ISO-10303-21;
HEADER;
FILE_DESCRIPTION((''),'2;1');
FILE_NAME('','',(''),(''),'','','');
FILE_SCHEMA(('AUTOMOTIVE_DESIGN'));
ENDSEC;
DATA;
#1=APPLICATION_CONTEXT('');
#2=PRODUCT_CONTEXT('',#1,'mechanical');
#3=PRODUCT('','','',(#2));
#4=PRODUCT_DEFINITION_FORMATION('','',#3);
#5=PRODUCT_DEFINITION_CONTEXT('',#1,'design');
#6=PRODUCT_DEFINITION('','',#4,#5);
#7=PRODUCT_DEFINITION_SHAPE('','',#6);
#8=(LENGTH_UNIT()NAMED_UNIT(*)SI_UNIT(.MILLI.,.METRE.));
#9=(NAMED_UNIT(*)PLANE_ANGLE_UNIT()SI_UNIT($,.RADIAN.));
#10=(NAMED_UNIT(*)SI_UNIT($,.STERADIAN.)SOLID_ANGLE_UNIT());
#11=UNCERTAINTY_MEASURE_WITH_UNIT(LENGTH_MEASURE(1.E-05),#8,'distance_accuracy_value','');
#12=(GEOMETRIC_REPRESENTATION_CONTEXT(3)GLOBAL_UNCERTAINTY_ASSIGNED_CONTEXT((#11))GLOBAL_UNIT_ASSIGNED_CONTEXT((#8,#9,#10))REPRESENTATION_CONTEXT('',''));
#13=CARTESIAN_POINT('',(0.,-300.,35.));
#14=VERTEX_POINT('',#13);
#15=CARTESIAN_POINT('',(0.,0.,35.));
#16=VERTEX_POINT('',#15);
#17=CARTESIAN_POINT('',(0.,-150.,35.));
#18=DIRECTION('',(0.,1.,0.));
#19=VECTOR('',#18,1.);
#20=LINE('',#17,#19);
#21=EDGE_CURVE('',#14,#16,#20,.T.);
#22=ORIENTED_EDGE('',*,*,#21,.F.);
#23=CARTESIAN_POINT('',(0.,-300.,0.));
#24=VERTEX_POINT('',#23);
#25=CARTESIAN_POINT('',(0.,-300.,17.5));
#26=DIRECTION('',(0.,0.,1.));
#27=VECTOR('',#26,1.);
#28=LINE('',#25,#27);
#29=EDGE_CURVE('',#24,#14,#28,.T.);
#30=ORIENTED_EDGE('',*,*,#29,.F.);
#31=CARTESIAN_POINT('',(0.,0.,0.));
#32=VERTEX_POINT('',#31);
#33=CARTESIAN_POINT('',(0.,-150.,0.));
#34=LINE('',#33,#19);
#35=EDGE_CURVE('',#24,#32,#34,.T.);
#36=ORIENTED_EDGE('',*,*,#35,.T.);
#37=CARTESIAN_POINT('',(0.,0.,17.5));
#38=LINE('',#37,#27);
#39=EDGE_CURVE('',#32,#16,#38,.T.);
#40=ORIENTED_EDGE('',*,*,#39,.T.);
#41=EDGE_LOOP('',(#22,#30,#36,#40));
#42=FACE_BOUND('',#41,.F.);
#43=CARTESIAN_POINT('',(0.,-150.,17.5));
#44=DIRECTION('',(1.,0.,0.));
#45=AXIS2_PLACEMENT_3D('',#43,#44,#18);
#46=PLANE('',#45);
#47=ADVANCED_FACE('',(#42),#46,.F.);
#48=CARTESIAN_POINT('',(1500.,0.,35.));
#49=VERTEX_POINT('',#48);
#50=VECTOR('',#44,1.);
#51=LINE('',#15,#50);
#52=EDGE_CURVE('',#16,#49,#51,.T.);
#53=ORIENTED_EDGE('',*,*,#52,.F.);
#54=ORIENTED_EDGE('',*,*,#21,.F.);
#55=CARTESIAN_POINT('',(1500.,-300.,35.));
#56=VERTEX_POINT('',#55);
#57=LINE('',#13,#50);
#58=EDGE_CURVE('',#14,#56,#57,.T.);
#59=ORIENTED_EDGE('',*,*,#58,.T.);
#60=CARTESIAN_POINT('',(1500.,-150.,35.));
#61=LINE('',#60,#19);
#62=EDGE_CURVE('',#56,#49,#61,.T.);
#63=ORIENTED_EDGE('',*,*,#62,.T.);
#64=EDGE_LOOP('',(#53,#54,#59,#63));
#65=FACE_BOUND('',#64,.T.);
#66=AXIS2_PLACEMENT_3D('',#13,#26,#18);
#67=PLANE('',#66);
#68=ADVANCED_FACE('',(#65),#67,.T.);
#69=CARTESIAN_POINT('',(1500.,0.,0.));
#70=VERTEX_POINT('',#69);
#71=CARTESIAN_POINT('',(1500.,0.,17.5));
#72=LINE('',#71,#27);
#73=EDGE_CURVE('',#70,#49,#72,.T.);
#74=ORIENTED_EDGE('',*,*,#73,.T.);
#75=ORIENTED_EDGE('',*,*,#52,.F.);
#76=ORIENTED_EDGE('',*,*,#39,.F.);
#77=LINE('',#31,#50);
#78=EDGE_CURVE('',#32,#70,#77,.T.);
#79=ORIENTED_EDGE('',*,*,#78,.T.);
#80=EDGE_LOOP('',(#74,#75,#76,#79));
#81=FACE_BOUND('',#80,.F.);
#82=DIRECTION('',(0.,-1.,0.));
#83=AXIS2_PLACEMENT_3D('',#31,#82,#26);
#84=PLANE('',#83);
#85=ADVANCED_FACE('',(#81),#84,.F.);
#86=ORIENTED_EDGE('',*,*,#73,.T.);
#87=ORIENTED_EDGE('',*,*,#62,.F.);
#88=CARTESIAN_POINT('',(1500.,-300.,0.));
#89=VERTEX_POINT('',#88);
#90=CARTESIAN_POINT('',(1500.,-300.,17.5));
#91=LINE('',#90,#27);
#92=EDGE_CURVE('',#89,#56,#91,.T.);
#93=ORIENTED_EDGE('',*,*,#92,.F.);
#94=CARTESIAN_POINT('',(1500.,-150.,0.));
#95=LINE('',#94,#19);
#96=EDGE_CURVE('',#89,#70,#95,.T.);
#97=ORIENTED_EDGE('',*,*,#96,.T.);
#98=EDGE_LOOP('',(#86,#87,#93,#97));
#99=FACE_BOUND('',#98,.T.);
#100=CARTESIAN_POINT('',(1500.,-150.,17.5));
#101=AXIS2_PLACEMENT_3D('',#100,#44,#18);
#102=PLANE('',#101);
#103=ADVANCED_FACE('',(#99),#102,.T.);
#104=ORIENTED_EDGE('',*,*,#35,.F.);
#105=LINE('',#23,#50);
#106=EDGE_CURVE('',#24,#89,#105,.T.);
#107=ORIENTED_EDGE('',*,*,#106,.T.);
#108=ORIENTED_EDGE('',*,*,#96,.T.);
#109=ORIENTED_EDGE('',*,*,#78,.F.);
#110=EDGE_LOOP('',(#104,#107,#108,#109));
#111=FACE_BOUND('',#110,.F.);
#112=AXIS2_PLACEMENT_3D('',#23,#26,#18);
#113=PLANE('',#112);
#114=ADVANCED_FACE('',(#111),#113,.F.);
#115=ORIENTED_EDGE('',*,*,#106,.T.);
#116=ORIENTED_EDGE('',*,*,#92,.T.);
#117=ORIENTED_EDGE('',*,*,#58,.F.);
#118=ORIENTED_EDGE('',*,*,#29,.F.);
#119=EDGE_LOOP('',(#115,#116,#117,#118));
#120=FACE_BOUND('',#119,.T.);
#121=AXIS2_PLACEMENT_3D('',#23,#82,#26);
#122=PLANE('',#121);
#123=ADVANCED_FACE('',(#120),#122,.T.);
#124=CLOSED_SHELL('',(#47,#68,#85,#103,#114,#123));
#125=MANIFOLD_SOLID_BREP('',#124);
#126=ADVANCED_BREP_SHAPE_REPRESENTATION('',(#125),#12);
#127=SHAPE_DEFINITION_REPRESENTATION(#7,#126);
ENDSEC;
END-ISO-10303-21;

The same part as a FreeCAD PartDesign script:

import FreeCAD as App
import Part
import Sketcher

V = App.Vector
Q = App.Units.Quantity

doc = App.newDocument("Part")
body = doc.addObject("PartDesign::Body", "Body")

sketch1 = body.newObject("Sketcher::SketchObject", "Sketch")
sketch1.AttachmentSupport = (doc.getObject("YZ_Plane"), [""])
sketch1.MapMode = "FlatFace"
sketch1.addGeometry(Part.LineSegment(V(-300, 35, 0), V(-300, 0, 0)), False)
sketch1.addGeometry(Part.LineSegment(V(-300, 0, 0), V(0, 0, 0)), False)
sketch1.addGeometry(Part.LineSegment(V(0, 0, 0), V(0, 35, 0)), False)
sketch1.addGeometry(Part.LineSegment(V(0, 35, 0), V(-300, 35, 0)), False)
sketch1.addConstraint(Sketcher.Constraint("Coincident", 0, 2, 1, 1))
sketch1.addConstraint(Sketcher.Constraint("Coincident", 1, 2, 2, 1))
sketch1.addConstraint(Sketcher.Constraint("Coincident", 2, 2, 3, 1))
sketch1.addConstraint(Sketcher.Constraint("Coincident", 3, 2, 0, 1))
sketch1.addConstraint(Sketcher.Constraint("Vertical", 0))
sketch1.addConstraint(Sketcher.Constraint("Horizontal", 1))
sketch1.addConstraint(Sketcher.Constraint("Vertical", 2))
sketch1.addConstraint(Sketcher.Constraint("Horizontal", 3))
sketch1.addConstraint(Sketcher.Constraint("Coincident", 1, 2, -1, 1))
sketch1.addConstraint(Sketcher.Constraint("DistanceX", 1, 1, 1, 2, Q("300 mm")))
sketch1.addConstraint(Sketcher.Constraint("DistanceY", 0, 2, 0, 1, Q("35 mm")))
pad1 = body.newObject("PartDesign::Pad", "Pad")
pad1.Profile = sketch1
pad1.Length = 1500

doc.recompute()
